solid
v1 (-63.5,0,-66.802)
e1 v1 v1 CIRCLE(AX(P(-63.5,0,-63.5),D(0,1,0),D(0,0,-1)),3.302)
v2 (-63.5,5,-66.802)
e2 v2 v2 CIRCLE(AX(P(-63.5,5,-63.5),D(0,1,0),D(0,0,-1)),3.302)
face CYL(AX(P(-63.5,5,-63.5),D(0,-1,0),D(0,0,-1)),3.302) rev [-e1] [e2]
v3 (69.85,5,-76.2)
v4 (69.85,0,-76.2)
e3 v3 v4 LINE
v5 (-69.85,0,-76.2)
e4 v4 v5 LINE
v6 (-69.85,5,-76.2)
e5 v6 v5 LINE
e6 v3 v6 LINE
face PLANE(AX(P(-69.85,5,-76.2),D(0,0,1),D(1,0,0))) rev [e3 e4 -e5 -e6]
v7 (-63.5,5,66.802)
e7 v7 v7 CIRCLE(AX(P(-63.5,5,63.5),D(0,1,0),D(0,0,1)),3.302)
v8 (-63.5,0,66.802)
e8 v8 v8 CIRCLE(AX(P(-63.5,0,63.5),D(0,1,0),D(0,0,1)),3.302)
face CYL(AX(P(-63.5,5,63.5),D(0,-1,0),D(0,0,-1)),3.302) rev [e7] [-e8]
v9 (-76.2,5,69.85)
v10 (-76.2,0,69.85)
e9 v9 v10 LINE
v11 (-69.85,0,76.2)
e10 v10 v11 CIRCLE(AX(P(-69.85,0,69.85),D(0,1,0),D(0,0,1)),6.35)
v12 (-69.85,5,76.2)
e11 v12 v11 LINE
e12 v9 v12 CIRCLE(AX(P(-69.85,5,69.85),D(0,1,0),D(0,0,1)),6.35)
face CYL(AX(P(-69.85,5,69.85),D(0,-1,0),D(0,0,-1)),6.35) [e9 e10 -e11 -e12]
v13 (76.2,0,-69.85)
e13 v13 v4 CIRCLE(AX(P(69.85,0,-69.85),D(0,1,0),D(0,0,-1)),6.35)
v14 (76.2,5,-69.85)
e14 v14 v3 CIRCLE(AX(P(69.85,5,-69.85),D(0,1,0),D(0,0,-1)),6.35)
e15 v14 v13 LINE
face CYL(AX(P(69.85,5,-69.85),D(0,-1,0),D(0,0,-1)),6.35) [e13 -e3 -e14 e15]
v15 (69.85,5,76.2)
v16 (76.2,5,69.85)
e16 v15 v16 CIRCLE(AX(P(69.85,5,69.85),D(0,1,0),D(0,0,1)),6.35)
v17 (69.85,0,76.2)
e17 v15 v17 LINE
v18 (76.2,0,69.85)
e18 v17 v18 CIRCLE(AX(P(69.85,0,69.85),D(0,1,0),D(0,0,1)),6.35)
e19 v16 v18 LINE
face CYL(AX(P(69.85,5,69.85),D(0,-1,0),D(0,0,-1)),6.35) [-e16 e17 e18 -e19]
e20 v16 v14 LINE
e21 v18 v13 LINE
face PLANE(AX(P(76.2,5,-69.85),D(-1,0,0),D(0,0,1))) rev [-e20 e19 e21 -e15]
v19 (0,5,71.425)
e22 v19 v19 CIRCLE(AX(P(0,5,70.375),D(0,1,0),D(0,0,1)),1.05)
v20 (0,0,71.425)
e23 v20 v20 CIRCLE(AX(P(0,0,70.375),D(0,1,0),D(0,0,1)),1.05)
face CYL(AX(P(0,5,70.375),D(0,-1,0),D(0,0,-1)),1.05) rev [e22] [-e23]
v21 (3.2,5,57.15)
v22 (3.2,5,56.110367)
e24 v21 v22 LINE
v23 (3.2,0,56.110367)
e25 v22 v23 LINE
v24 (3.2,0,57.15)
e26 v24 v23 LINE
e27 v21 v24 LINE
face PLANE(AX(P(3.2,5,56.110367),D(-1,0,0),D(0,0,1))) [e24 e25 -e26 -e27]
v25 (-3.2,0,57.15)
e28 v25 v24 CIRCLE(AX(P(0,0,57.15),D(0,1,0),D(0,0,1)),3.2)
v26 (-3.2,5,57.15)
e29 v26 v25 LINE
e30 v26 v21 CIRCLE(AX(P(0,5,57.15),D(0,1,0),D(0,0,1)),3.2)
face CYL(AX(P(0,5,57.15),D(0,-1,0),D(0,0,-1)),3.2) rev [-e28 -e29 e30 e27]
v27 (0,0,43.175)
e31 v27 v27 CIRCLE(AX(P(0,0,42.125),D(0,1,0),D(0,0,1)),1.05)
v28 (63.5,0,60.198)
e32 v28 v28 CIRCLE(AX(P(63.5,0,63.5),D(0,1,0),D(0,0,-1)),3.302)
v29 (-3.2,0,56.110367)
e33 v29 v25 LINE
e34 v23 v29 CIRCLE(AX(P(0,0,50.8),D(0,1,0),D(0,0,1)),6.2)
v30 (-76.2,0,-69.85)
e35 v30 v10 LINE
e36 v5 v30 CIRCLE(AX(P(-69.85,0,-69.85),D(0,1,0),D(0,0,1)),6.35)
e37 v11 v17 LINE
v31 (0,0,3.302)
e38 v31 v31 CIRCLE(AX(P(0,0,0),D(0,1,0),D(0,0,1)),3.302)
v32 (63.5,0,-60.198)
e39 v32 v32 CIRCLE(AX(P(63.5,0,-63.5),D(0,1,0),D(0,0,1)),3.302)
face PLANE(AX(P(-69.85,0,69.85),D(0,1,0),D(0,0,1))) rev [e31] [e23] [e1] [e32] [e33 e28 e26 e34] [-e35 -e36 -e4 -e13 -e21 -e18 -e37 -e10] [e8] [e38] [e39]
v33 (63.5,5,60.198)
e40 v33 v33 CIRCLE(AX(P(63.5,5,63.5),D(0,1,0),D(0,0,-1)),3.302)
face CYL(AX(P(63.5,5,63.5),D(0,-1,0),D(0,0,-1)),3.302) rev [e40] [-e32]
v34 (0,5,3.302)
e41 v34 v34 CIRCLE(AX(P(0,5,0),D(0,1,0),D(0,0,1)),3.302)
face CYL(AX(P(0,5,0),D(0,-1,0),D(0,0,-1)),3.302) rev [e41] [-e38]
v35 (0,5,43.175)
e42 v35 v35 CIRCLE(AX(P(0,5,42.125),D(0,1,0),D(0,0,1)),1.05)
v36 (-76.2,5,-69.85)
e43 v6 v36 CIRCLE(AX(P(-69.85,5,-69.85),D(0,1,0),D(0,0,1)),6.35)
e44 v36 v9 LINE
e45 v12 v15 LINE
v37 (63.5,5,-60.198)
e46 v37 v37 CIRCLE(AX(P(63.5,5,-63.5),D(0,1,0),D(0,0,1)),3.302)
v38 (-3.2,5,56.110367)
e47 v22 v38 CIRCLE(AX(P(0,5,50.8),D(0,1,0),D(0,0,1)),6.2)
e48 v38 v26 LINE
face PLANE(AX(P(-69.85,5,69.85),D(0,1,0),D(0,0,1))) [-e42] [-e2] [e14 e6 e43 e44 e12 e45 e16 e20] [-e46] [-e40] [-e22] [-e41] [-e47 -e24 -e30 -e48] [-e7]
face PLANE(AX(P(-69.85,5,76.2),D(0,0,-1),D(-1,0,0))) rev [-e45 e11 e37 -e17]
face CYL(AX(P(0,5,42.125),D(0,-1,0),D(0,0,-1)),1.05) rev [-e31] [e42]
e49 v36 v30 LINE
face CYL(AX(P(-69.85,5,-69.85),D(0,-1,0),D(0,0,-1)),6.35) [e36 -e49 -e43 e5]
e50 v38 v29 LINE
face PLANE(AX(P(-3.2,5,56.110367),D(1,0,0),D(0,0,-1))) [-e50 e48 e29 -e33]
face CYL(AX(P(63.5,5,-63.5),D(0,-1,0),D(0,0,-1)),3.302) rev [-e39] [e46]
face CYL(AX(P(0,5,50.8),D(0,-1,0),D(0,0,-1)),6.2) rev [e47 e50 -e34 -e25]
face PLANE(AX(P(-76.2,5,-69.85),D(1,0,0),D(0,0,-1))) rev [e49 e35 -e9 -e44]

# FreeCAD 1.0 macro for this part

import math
import FreeCAD as App
import Part
import Sketcher

V = App.Vector
Q = App.Units.Quantity

doc = App.newDocument("Part")
body = doc.addObject("PartDesign::Body", "Body")

# Sketch on XZ plane
sketch1 = body.newObject("Sketcher::SketchObject", "Sketch")
sketch1.AttachmentSupport = (doc.getObject("XZ_Plane"), [""])
sketch1.MapMode = "FlatFace"
sketch1.addGeometry(Part.LineSegment(V(69.8, -76.2, 0), V(-69.8, -76.2, 0)), False)
sketch1.addGeometry(Part.ArcOfCircle(Part.Circle(V(-69.9, -69.9, 0), V(0, 0, 1), 6.3), math.radians(180), math.radians(270)), False)
sketch1.addGeometry(Part.LineSegment(V(-76.2, -69.8, 0), V(-76.2, 69.8, 0)), False)
sketch1.addGeometry(Part.ArcOfCircle(Part.Circle(V(-69.9, 69.9, 0), V(0, 0, 1), 6.3), math.radians(90), math.radians(180)), False)
sketch1.addGeometry(Part.LineSegment(V(-69.8, 76.2, 0), V(69.8, 76.2, 0)), False)
sketch1.addGeometry(Part.ArcOfCircle(Part.Circle(V(69.9, 69.9, 0), V(0, 0, 1), 6.3), math.radians(0), math.radians(90)), False)
sketch1.addGeometry(Part.LineSegment(V(76.2, 69.8, 0), V(76.2, -69.8, 0)), False)
sketch1.addGeometry(Part.ArcOfCircle(Part.Circle(V(69.9, -69.9, 0), V(0, 0, 1), 6.3), math.radians(-90), math.radians(0)), False)
sketch1.addGeometry(Part.Circle(V(63.5, 63.5, 0), V(0, 0, 1), 3.3), False)
sketch1.addGeometry(Part.Circle(V(-63.5, 63.5, 0), V(0, 0, 1), 3.3), False)
sketch1.addGeometry(Part.Circle(V(63.5, -63.5, 0), V(0, 0, 1), 3.3), False)
sketch1.addGeometry(Part.Circle(V(0, 0, 0), V(0, 0, 1), 3.3), False)
sketch1.addGeometry(Part.Circle(V(-63.5, -63.5, 0), V(0, 0, 1), 3.3), False)
sketch1.addConstraint(Sketcher.Constraint("Tangent", 0, 2, 1, 2))
sketch1.addConstraint(Sketcher.Constraint("Tangent", 1, 1, 2, 1))
sketch1.addConstraint(Sketcher.Constraint("Tangent", 2, 2, 3, 2))
sketch1.addConstraint(Sketcher.Constraint("Tangent", 3, 1, 4, 1))
sketch1.addConstraint(Sketcher.Constraint("Tangent", 4, 2, 5, 2))
sketch1.addConstraint(Sketcher.Constraint("Tangent", 5, 1, 6, 1))
sketch1.addConstraint(Sketcher.Constraint("Tangent", 6, 2, 7, 2))
sketch1.addConstraint(Sketcher.Constraint("Tangent", 7, 1, 0, 1))
sketch1.addConstraint(Sketcher.Constraint("Horizontal", 0))
sketch1.addConstraint(Sketcher.Constraint("Vertical", 2))
sketch1.addConstraint(Sketcher.Constraint("Horizontal", 4))
sketch1.addConstraint(Sketcher.Constraint("Vertical", 6))
sketch1.addConstraint(Sketcher.Constraint("Coincident", 11, 3, -1, 1))
sketch1.addConstraint(Sketcher.Constraint("Equal", 1, 3))
sketch1.addConstraint(Sketcher.Constraint("Equal", 3, 5))
sketch1.addConstraint(Sketcher.Constraint("Equal", 5, 7))
sketch1.addConstraint(Sketcher.Constraint("Equal", 8, 9))
sketch1.addConstraint(Sketcher.Constraint("Equal", 9, 10))
sketch1.addConstraint(Sketcher.Constraint("Equal", 10, 11))
sketch1.addConstraint(Sketcher.Constraint("Equal", 11, 12))
sketch1.addConstraint(Sketcher.Constraint("Symmetric", 1, 3, 5, 3, -1, 1))
sketch1.addConstraint(Sketcher.Constraint("Symmetric", 9, 3, 10, 3, -1, 1))
sketch1.addConstraint(Sketcher.Constraint("Symmetric", 8, 3, 12, 3, -1, 1))
sketch1.addConstraint(Sketcher.Constraint("Symmetric", 8, 3, 9, 3, -2))
sketch1.addConstraint(Sketcher.Constraint("Equal", 4, 2))
sketch1.addConstraint(Sketcher.Constraint("Radius", 1, Q("6.35 mm")))
sketch1.addConstraint(Sketcher.Constraint("Diameter", 8, Q("6.604 mm")))
sketch1.addConstraint(Sketcher.Constraint("DistanceX", 0, 2, 0, 1, Q("139.7 mm")))
sketch1.addConstraint(Sketcher.Constraint("DistanceX", 9, 3, 8, 3, Q("127 mm")))
sketch1.addConstraint(Sketcher.Constraint("DistanceY", 10, 3, 8, 3, Q("127 mm")))
pad1 = body.newObject("PartDesign::Pad", "Pad")
pad1.Profile = sketch1
pad1.Length = 5
pad1.Reversed = True

# Sketch on XZ plane
sketch2 = body.newObject("Sketcher::SketchObject", "Sketch001")
sketch2.AttachmentSupport = (doc.getObject("XZ_Plane"), [""])
sketch2.MapMode = "FlatFace"
sketch2.addGeometry(Part.Circle(V(0, 42.1, 0), V(0, 0, 1), 1.1), False)
sketch2.addGeometry(Part.Circle(V(0, 70.4, 0), V(0, 0, 1), 1.1), False)
sketch2.addGeometry(Part.LineSegment(V(-3.2, 56.1, 0), V(-3.2, 57.1, 0)), False)
sketch2.addGeometry(Part.ArcOfCircle(Part.Circle(V(0, 57.1, 0), V(0, 0, 1), 3.2), math.radians(0), math.radians(180)), False)
sketch2.addGeometry(Part.LineSegment(V(3.2, 57.1, 0), V(3.2, 56.1, 0)), False)
sketch2.addGeometry(Part.ArcOfCircle(Part.Circle(V(0, 50.8, 0), V(0, 0, 1), 6.2), math.radians(121), math.radians(419)), False)
sketch2.addConstraint(Sketcher.Constraint("Tangent", 2, 2, 3, 2))
sketch2.addConstraint(Sketcher.Constraint("Tangent", 3, 1, 4, 1))
sketch2.addConstraint(Sketcher.Constraint("Coincident", 4, 2, 5, 2))
sketch2.addConstraint(Sketcher.Constraint("Coincident", 5, 1, 2, 1))
sketch2.addConstraint(Sketcher.Constraint("Vertical", 2))
sketch2.addConstraint(Sketcher.Constraint("Vertical", 4))
sketch2.addConstraint(Sketcher.Constraint("Equal", 0, 1))
sketch2.addConstraint(Sketcher.Constraint("Symmetric", 4, 2, 5, 1, -2))
sketch2.addConstraint(Sketcher.Constraint("PointOnObject", 0, 3, -2))
sketch2.addConstraint(Sketcher.Constraint("PointOnObject", 1, 3, -2))
sketch2.addConstraint(Sketcher.Constraint("Diameter", 0, Q("2.1 mm")))
sketch2.addConstraint(Sketcher.Constraint("Radius", 3, Q("3.2 mm")))
sketch2.addConstraint(Sketcher.Constraint("Radius", 5, Q("6.2 mm")))
sketch2.addConstraint(Sketcher.Constraint("DistanceY", -1, 1, 5, 3, Q("50.8 mm")))
sketch2.addConstraint(Sketcher.Constraint("DistanceY", -1, 1, 3, 3, Q("57.15 mm")))
sketch2.addConstraint(Sketcher.Constraint("DistanceY", 0, 3, 1, 3, Q("28.25 mm")))
sketch2.addConstraint(Sketcher.Constraint("DistanceY", -1, 1, 0, 3, Q("42.125 mm")))
pocket1 = body.newObject("PartDesign::Pocket", "Pocket")
pocket1.Profile = sketch2
pocket1.Type = "ThroughAll"

doc.recompute()
